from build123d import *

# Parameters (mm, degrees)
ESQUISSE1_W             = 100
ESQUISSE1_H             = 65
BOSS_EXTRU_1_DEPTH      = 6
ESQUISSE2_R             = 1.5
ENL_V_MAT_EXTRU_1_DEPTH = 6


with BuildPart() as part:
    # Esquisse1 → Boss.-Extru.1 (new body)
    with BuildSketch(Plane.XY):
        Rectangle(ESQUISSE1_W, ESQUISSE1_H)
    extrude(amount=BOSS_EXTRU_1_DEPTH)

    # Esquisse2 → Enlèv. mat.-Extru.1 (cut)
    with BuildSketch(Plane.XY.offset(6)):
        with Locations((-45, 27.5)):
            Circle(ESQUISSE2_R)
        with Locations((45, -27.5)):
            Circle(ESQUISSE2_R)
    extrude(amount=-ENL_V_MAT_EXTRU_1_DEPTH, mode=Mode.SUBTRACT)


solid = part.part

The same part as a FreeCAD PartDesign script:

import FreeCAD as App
import Part
import Sketcher

doc = App.newDocument("Part")
body = doc.addObject("PartDesign::Body", "Body")

# Sketch on XY plane
sketch1 = body.newObject("Sketcher::SketchObject", "Sketch")
sketch1.AttachmentSupport = (doc.getObject("XY_Plane"), [""])
sketch1.MapMode = "FlatFace"
sketch1.addGeometry(Part.LineSegment(App.Vector(-50, 32, 0), App.Vector(-50, -32, 0)), False)
sketch1.addGeometry(Part.LineSegment(App.Vector(-50, -32, 0), App.Vector(50, -32, 0)), False)
sketch1.addGeometry(Part.LineSegment(App.Vector(50, -32, 0), App.Vector(50, 32, 0)), False)
sketch1.addGeometry(Part.LineSegment(App.Vector(50, 32, 0), App.Vector(-50, 32, 0)), False)
sketch1.addConstraint(Sketcher.Constraint("Coincident", 0, 2, 1, 1))
sketch1.addConstraint(Sketcher.Constraint("Coincident", 1, 2, 2, 1))
sketch1.addConstraint(Sketcher.Constraint("Coincident", 2, 2, 3, 1))
sketch1.addConstraint(Sketcher.Constraint("Coincident", 3, 2, 0, 1))
sketch1.addConstraint(Sketcher.Constraint("Vertical", 0))
sketch1.addConstraint(Sketcher.Constraint("Horizontal", 1))
sketch1.addConstraint(Sketcher.Constraint("Vertical", 2))
sketch1.addConstraint(Sketcher.Constraint("Horizontal", 3))
sketch1.addConstraint(Sketcher.Constraint("Symmetric", 0, 2, 2, 2, -1, 1))
sketch1.addConstraint(Sketcher.Constraint("DistanceX", 1, 1, 1, 2, 100.0))
sketch1.addConstraint(Sketcher.Constraint("DistanceY", 0, 2, 0, 1, 65.0))
pad1 = body.newObject("PartDesign::Pad", "Pad")
pad1.Profile = sketch1
pad1.Length = 6

# Sketch on XY plane
sketch2 = body.newObject("Sketcher::SketchObject", "Sketch001")
sketch2.AttachmentSupport = (doc.getObject("XY_Plane"), [""])
sketch2.MapMode = "FlatFace"
sketch2.AttachmentOffset = App.Placement(App.Vector(0, 0, 6), App.Rotation())
sketch2.addGeometry(Part.Circle(App.Vector(-45, 27.5, 0), App.Vector(0, 0, 1), 1.5), False)
sketch2.addGeometry(Part.Circle(App.Vector(45, -27.5, 0), App.Vector(0, 0, 1), 1.5), False)
sketch2.addConstraint(Sketcher.Constraint("Equal", 0, 1))
sketch2.addConstraint(Sketcher.Constraint("Symmetric", 0, 3, 1, 3, -1, 1))
sketch2.addConstraint(Sketcher.Constraint("Diameter", 0, 3.0))
sketch2.addConstraint(Sketcher.Constraint("DistanceX", 0, 3, -1, 1, 45.0))
sketch2.addConstraint(Sketcher.Constraint("DistanceY", 1, 3, 0, 3, 55.0))
pocket1 = body.newObject("PartDesign::Pocket", "Pocket")
pocket1.Profile = sketch2
pocket1.Length = 6

doc.recompute()
